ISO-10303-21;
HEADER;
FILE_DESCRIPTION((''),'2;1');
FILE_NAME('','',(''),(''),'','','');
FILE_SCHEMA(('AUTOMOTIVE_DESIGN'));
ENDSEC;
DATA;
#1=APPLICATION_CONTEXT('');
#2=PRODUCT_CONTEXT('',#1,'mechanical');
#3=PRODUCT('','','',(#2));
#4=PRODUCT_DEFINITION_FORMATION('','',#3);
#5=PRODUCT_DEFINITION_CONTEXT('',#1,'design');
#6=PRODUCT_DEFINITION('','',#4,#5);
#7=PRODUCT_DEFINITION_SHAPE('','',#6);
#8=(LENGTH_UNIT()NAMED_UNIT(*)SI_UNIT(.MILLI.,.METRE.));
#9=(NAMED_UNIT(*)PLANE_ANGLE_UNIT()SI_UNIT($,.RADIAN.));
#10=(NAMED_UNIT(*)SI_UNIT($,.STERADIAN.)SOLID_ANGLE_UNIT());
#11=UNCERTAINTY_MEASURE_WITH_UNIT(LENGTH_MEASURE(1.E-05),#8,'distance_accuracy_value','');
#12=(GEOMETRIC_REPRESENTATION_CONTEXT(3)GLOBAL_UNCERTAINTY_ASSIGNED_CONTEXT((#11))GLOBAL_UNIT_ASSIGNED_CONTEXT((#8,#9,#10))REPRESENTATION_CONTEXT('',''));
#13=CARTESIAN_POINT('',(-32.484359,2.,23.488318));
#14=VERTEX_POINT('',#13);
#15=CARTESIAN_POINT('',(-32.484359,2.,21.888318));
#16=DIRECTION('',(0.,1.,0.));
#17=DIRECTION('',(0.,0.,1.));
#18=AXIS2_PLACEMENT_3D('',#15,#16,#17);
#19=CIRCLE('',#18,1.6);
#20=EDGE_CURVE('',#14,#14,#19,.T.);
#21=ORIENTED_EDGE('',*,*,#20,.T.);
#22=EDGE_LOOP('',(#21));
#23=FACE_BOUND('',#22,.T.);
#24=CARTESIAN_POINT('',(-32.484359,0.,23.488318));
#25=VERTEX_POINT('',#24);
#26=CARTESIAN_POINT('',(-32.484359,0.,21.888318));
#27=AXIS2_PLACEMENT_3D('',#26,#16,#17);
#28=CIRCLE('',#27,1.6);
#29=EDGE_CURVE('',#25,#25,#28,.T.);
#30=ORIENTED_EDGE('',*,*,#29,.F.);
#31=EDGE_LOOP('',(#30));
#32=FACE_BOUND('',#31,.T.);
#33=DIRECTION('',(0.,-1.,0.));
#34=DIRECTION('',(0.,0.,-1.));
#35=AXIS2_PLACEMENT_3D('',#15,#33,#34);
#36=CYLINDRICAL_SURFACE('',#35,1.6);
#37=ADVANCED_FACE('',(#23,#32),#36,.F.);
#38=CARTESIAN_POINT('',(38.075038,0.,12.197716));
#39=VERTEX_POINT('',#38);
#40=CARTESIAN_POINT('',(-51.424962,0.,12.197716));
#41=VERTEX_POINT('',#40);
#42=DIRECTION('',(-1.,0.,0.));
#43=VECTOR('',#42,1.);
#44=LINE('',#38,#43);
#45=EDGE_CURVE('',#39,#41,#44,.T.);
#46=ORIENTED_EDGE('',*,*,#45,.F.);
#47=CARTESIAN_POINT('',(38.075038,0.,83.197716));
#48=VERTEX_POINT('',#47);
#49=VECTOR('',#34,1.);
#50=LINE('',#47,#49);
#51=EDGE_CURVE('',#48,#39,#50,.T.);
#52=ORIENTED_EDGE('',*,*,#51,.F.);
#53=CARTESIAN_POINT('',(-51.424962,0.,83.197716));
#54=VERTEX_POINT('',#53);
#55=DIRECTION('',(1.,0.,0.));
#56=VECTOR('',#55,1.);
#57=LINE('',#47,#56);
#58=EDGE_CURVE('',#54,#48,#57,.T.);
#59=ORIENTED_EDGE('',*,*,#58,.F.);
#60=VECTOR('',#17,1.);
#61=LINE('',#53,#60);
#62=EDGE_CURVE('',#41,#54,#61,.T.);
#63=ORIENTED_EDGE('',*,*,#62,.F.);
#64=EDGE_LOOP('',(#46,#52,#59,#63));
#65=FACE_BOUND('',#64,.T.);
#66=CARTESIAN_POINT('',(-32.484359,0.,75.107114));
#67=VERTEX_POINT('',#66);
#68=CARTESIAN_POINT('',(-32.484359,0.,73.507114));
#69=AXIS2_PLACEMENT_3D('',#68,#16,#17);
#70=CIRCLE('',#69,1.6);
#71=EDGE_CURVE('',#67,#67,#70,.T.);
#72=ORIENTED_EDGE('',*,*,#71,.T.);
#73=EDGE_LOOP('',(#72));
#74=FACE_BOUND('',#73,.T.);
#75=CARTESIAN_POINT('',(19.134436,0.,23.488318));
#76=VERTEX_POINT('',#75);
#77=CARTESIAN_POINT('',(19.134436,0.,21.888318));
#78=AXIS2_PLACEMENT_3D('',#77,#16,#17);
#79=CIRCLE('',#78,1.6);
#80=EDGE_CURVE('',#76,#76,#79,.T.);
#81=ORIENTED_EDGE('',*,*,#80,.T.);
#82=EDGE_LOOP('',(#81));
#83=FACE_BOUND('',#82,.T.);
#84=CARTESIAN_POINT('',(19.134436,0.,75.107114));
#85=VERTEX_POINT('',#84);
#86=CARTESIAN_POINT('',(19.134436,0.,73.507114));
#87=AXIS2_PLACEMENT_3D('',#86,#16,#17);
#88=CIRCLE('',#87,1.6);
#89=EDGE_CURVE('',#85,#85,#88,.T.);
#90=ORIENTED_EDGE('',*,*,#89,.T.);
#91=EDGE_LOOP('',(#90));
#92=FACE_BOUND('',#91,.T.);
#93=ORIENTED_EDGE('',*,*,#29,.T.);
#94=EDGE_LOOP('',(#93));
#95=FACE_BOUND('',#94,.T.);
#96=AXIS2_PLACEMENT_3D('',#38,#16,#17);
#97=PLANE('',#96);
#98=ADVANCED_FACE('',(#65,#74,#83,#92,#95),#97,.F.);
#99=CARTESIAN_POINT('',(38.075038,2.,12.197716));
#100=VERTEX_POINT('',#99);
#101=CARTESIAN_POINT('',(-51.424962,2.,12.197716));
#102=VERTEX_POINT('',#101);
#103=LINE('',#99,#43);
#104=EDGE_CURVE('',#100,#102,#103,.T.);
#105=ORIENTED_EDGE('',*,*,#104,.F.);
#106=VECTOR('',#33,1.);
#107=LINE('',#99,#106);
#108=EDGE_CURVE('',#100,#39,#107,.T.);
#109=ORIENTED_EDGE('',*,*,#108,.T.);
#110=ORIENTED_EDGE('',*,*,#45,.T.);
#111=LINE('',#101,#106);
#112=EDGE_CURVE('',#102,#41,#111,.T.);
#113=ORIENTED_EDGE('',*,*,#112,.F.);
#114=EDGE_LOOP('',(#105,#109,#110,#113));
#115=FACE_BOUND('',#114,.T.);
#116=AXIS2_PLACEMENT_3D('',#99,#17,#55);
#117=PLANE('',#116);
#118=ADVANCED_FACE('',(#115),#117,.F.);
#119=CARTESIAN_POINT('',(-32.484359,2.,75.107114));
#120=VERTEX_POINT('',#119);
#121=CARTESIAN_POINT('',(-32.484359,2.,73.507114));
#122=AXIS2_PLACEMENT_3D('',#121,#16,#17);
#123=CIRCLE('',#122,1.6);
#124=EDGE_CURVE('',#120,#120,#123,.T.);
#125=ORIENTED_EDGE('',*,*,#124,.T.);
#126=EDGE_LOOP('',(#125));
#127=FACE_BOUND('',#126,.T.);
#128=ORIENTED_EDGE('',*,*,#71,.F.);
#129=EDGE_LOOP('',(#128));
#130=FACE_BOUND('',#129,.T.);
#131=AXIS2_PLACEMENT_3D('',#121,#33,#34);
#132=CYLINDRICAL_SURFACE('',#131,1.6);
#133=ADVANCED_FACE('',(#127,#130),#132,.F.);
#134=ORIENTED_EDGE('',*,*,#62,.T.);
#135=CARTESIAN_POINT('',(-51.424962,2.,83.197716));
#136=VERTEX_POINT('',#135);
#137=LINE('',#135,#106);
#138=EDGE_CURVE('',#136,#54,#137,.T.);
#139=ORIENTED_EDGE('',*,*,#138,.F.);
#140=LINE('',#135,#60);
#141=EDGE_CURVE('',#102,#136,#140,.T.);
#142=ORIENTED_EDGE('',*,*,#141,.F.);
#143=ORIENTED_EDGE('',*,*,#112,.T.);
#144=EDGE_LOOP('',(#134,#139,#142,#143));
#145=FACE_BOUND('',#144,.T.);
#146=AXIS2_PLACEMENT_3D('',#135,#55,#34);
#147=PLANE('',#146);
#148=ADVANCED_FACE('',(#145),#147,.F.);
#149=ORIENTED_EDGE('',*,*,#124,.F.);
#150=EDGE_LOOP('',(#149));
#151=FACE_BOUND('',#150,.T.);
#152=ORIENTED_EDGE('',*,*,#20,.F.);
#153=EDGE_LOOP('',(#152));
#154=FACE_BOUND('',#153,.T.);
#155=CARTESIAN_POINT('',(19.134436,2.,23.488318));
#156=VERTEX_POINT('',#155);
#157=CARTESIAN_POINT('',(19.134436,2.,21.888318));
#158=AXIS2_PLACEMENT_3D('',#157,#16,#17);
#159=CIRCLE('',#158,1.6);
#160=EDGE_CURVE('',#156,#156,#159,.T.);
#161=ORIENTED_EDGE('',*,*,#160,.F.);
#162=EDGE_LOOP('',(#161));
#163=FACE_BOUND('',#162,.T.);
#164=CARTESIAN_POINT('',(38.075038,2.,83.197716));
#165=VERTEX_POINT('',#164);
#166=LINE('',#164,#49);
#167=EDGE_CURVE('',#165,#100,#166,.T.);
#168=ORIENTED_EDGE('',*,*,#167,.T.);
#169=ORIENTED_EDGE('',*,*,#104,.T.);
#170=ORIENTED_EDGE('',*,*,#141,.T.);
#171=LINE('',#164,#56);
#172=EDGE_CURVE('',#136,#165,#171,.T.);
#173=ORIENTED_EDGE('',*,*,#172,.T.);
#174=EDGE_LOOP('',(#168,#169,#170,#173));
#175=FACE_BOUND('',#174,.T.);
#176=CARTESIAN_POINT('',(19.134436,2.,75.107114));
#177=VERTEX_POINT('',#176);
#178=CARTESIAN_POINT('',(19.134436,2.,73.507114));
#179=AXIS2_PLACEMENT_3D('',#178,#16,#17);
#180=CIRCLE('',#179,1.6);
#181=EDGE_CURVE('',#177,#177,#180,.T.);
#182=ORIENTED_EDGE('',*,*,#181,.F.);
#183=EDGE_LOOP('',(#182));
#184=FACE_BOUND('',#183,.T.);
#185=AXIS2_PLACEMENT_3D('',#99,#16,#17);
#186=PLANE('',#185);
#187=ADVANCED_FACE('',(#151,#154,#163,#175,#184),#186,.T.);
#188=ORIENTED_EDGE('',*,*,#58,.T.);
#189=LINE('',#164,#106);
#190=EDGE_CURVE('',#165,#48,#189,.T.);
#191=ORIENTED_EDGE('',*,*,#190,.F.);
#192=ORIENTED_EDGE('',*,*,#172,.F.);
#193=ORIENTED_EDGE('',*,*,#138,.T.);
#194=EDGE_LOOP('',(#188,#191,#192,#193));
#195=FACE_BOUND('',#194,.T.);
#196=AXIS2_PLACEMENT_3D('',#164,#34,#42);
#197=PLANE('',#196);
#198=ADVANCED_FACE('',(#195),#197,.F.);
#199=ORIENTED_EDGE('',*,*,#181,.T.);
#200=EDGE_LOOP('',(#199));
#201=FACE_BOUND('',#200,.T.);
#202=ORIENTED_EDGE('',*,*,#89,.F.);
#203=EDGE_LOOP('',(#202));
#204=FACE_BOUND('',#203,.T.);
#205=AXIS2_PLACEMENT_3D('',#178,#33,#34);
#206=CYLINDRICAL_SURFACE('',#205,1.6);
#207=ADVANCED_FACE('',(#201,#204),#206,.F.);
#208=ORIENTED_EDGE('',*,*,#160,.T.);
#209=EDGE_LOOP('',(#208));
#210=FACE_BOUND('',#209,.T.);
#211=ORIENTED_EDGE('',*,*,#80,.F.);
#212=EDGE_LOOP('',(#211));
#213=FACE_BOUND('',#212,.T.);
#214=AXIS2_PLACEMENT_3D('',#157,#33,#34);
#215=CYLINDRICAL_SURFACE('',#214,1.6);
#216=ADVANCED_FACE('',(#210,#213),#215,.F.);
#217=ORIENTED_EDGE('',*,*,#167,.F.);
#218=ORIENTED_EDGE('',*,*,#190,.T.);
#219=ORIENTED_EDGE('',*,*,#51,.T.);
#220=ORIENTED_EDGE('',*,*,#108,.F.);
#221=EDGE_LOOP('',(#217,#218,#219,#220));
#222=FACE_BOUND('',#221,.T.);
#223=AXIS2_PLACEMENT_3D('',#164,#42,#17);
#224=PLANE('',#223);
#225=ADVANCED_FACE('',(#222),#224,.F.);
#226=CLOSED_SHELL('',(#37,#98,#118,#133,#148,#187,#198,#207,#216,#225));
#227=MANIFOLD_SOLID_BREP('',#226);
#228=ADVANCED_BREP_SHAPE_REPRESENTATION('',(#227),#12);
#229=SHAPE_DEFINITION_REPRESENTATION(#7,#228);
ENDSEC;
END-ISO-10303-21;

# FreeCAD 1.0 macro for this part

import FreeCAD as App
import Part
import Sketcher
Q = App.Units.Quantity


def add_polygon(sketch, points):
    """Adds a closed chain of lines whose ends are joined by coincident constraints."""
    first, n = sketch.GeometryCount, len(points)
    for a, b in zip(points, points[1:] + points[:1]):
        sketch.addGeometry(Part.LineSegment(App.Vector(*a, 0), App.Vector(*b, 0)), False)
    for i in range(n):
        sketch.addConstraint(Sketcher.Constraint("Coincident", first + i, 2, first + (i + 1) % n, 1))

doc = App.newDocument("Part")
body = doc.addObject("PartDesign::Body", "Body")

# Sketch on XZ plane
sketch1 = body.newObject("Sketcher::SketchObject", "Sketch")
sketch1.AttachmentSupport = (doc.getObject("XZ_Plane"), [""])
sketch1.MapMode = "FlatFace"
add_polygon(sketch1, [(-51.424962, 12.197716), (-51.424962, 83.197716), (38.075038, 83.197716), (38.075038, 12.197716)])  # lines 0-3
sketch1.addGeometry(Part.Circle(App.Vector(-32.484359, 73.507114, 0), App.Vector(0, 0, 1), 1.6), False)  # 4
sketch1.addGeometry(Part.Circle(App.Vector(19.134436, 73.507114, 0), App.Vector(0, 0, 1), 1.6), False)  # 5
sketch1.addGeometry(Part.Circle(App.Vector(-32.484359, 21.888318, 0), App.Vector(0, 0, 1), 1.6), False)  # 6
sketch1.addGeometry(Part.Circle(App.Vector(19.134436, 21.888318, 0), App.Vector(0, 0, 1), 1.6), False)  # 7
sketch1.addConstraint([
    Sketcher.Constraint("Vertical", 0),
    Sketcher.Constraint("Horizontal", 1),
    Sketcher.Constraint("Vertical", 2),
    Sketcher.Constraint("Horizontal", 3),
    Sketcher.Constraint("Equal", 4, 5),
    Sketcher.Constraint("Equal", 5, 6),
    Sketcher.Constraint("Equal", 6, 7),
    Sketcher.Constraint("Horizontal", 4, 3, 5, 3),
    Sketcher.Constraint("Horizontal", 6, 3, 7, 3),
    Sketcher.Constraint("Vertical", 4, 3, 6, 3),
    Sketcher.Constraint("Vertical", 5, 3, 7, 3),
    Sketcher.Constraint("Diameter", 4, Q("3.2 mm")),
    Sketcher.Constraint("DistanceY", 0, 1, 0, 2, Q("71 mm")),
    Sketcher.Constraint("DistanceX", 1, 1, 1, 2, Q("89.5 mm")),
    Sketcher.Constraint("DistanceX", 4, 3, -1, 1, Q("32.484359 mm")),
    Sketcher.Constraint("DistanceY", -1, 1, 6, 3, Q("21.888318 mm")),
    Sketcher.Constraint("DistanceX", 0, 2, -1, 1, Q("51.424962 mm")),
    Sketcher.Constraint("DistanceY", -1, 1, 4, 3, Q("73.507114 mm")),
    Sketcher.Constraint("DistanceX", -1, 1, 5, 3, Q("19.134436 mm")),
    Sketcher.Constraint("DistanceY", -1, 1, 0, 2, Q("83.197716 mm")),
])
pad1 = body.newObject("PartDesign::Pad", "Pad")
pad1.Profile = sketch1
pad1.Length = 2
pad1.Reversed = True

doc.recompute()
